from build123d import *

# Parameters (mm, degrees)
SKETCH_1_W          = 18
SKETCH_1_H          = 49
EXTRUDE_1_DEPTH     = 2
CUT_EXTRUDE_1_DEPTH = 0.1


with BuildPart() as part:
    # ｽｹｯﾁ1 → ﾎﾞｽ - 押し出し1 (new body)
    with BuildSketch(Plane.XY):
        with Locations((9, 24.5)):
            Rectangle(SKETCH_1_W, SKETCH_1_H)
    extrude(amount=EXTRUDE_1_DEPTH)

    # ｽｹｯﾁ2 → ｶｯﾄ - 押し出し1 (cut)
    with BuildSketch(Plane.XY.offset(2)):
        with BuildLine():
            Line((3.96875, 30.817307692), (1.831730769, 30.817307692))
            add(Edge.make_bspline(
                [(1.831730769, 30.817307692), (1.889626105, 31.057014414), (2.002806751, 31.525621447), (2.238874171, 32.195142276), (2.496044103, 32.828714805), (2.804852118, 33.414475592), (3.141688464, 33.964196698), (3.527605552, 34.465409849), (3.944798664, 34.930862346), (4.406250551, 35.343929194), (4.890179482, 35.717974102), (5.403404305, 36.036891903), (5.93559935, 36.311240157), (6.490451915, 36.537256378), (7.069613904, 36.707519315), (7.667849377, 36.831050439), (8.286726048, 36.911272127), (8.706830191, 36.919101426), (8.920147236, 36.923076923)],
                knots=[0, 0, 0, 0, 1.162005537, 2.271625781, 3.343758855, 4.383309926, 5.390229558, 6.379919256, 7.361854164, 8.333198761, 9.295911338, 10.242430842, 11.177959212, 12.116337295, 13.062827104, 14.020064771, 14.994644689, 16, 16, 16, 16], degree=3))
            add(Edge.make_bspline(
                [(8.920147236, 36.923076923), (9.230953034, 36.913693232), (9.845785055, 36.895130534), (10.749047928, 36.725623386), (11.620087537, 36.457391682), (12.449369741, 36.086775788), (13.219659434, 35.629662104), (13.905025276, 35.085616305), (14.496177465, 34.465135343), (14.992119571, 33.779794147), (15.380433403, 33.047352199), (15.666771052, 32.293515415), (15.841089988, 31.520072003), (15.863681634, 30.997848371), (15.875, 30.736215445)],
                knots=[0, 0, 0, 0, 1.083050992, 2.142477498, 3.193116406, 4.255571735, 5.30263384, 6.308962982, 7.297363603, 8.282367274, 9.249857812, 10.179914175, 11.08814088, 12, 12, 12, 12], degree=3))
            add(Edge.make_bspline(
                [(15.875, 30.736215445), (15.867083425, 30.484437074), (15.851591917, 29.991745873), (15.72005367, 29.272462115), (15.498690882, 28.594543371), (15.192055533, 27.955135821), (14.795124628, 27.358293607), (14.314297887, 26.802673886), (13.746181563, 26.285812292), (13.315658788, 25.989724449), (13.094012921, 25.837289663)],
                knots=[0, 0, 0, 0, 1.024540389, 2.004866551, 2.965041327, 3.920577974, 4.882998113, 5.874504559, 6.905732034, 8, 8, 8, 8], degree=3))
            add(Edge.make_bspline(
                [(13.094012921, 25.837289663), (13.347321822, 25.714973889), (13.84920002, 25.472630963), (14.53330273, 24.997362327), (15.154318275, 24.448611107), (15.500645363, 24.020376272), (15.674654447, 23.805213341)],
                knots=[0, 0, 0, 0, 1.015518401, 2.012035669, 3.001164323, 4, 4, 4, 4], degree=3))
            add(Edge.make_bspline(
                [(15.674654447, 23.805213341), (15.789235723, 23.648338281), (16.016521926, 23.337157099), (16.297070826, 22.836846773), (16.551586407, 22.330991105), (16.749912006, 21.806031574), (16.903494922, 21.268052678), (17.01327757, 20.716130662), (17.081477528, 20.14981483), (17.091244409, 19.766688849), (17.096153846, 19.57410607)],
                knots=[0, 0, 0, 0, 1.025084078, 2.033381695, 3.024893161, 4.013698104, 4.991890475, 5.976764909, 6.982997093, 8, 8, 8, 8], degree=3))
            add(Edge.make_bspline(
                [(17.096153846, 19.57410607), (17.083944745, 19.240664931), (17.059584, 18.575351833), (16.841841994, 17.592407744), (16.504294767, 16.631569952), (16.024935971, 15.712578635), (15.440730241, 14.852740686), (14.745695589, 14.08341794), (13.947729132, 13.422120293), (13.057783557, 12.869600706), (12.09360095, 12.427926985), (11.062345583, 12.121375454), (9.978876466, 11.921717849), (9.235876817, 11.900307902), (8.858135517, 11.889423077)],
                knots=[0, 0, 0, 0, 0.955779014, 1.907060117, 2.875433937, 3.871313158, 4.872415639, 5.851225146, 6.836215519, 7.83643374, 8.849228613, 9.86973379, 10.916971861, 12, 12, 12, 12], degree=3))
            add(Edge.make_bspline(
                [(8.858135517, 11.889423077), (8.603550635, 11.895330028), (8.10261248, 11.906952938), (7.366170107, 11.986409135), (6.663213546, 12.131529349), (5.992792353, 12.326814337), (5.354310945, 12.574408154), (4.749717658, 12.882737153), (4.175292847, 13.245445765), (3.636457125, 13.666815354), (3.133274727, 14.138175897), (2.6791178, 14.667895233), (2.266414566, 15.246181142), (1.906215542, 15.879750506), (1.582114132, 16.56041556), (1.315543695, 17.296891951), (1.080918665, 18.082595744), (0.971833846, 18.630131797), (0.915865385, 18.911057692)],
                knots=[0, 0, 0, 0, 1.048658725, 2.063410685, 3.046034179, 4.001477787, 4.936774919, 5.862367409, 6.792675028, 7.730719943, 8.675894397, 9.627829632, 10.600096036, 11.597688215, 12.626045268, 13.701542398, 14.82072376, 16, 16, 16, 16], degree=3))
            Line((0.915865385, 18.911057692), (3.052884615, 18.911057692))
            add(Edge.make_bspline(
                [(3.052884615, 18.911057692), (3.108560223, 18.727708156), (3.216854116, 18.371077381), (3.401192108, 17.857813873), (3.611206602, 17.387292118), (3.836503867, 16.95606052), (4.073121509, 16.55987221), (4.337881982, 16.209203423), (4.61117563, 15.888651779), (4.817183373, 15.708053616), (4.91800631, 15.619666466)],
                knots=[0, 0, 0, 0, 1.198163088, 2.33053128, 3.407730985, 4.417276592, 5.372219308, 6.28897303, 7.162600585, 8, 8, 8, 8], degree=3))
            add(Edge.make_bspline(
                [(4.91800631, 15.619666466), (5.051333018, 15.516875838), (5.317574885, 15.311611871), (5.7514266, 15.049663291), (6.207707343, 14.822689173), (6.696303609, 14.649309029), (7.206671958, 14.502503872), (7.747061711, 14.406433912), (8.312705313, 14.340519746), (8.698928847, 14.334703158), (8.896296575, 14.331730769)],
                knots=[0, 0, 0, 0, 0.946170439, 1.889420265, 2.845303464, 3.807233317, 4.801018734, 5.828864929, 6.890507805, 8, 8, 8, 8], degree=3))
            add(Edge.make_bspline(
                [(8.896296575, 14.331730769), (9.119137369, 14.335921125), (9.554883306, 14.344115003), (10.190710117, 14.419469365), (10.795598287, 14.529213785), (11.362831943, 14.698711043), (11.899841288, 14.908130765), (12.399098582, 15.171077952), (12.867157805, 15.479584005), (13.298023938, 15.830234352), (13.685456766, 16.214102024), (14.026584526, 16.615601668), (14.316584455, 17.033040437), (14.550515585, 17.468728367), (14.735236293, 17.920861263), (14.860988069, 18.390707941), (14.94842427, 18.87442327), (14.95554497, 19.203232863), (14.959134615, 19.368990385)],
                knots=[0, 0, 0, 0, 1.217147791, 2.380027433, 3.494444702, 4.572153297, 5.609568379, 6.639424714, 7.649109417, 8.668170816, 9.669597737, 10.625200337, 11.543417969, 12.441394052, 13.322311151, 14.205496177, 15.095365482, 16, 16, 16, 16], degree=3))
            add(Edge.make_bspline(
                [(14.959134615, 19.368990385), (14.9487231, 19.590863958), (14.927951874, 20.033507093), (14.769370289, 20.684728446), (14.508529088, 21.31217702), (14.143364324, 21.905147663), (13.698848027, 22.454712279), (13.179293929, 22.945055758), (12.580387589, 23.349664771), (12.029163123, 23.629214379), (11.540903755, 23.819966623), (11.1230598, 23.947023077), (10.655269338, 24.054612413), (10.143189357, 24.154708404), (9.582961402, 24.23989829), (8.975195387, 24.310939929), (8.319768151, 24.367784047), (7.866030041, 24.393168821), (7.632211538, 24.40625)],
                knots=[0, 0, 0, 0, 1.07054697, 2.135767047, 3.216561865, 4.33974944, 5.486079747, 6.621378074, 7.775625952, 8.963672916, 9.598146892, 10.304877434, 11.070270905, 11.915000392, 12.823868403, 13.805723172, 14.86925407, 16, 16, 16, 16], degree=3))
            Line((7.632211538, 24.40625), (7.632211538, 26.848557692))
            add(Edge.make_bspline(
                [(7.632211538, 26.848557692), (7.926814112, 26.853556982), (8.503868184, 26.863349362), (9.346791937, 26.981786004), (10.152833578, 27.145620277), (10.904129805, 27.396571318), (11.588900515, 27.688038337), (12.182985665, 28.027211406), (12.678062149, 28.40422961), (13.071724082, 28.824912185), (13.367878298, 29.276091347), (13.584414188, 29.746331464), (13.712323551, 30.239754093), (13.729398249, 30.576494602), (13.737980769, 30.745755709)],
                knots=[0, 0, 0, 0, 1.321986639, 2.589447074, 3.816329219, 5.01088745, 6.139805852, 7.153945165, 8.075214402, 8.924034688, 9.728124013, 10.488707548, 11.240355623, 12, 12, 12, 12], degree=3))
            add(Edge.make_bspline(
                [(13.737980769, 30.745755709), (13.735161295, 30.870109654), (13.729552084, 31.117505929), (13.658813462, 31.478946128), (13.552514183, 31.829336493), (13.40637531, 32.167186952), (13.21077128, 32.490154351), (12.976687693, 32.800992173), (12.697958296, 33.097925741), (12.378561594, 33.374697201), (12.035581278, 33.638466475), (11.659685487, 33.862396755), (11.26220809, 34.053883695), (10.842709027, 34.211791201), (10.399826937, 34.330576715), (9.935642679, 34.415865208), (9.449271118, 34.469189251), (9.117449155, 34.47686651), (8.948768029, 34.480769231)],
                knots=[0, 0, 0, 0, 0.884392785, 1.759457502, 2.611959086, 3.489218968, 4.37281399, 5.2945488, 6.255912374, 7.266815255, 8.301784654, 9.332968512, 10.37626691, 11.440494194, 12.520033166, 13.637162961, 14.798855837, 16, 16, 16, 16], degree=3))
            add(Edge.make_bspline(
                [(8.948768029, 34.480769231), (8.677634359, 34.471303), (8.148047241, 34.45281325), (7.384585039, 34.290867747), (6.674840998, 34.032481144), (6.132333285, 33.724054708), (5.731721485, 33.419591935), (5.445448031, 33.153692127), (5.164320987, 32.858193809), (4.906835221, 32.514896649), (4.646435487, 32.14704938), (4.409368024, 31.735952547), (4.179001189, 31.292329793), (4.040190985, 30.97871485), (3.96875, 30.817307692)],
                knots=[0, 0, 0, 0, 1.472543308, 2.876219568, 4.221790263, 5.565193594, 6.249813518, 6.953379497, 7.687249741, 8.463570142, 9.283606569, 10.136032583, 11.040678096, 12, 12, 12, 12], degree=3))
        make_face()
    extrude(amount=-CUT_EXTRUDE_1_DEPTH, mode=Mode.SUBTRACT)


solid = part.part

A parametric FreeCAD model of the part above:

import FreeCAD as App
import Part
import Sketcher
Q = App.Units.Quantity

doc = App.newDocument("Part")
body = doc.addObject("PartDesign::Body", "Body")

# Sketch on XY plane
sketch1 = body.newObject("Sketcher::SketchObject", "Sketch")
sketch1.AttachmentSupport = (doc.getObject("XY_Plane"), [""])
sketch1.MapMode = "FlatFace"
sketch1.addGeometry(Part.LineSegment(App.Vector(0, 49, 0), App.Vector(0, 0, 0)), False)
sketch1.addGeometry(Part.LineSegment(App.Vector(0, 0, 0), App.Vector(18, 0, 0)), False)
sketch1.addGeometry(Part.LineSegment(App.Vector(18, 0, 0), App.Vector(18, 49, 0)), False)
sketch1.addGeometry(Part.LineSegment(App.Vector(18, 49, 0), App.Vector(0, 49, 0)), False)
sketch1.addConstraint(Sketcher.Constraint("Coincident", 0, 2, 1, 1))
sketch1.addConstraint(Sketcher.Constraint("Coincident", 1, 2, 2, 1))
sketch1.addConstraint(Sketcher.Constraint("Coincident", 2, 2, 3, 1))
sketch1.addConstraint(Sketcher.Constraint("Coincident", 3, 2, 0, 1))
sketch1.addConstraint(Sketcher.Constraint("Vertical", 0))
sketch1.addConstraint(Sketcher.Constraint("Horizontal", 1))
sketch1.addConstraint(Sketcher.Constraint("Vertical", 2))
sketch1.addConstraint(Sketcher.Constraint("Horizontal", 3))
sketch1.addConstraint(Sketcher.Constraint("Coincident", 0, 2, -1, 1))
sketch1.addConstraint(Sketcher.Constraint("DistanceX", 1, 1, 1, 2, Q("18 mm")))
sketch1.addConstraint(Sketcher.Constraint("DistanceY", 0, 2, 0, 1, Q("49 mm")))
pad1 = body.newObject("PartDesign::Pad", "Pad")
pad1.Profile = sketch1
pad1.Length = 2

# Sketch on XY plane
sketch2 = body.newObject("Sketcher::SketchObject", "Sketch001")
sketch2.AttachmentSupport = (doc.getObject("XY_Plane"), [""])
sketch2.MapMode = "FlatFace"
sketch2.AttachmentOffset = App.Placement(App.Vector(0, 0, 2), App.Rotation())
sketch2.addGeometry(Part.LineSegment(App.Vector(1.831731, 30.817308, 0), App.Vector(3.96875, 30.817308, 0)), False)
sketch2.addGeometry(Part.BSplineCurve([App.Vector(8.948768, 34.480769, 0), App.Vector(8.677634, 34.471303, 0), App.Vector(8.148047, 34.452813, 0), App.Vector(7.384585, 34.290868, 0), App.Vector(6.674841, 34.032481, 0), App.Vector(6.132333, 33.724055, 0), App.Vector(5.731721, 33.419592, 0), App.Vector(5.445448, 33.153692, 0), App.Vector(5.164321, 32.858194, 0), App.Vector(4.906835, 32.514897, 0), App.Vector(4.646435, 32.147049, 0), App.Vector(4.409368, 31.735953, 0), App.Vector(4.179001, 31.29233, 0), App.Vector(4.040191, 30.978715, 0), App.Vector(3.96875, 30.817308, 0)], [4, 1, 1, 1, 1, 1, 1, 1, 1, 1, 1, 1, 4], [0, 1.472543308, 2.876219568, 4.221790263, 5.565193594, 6.249813518, 6.953379497, 7.687249741, 8.463570142, 9.283606569, 10.136032583, 11.040678096, 12], False, 3, [1, 1, 1, 1, 1, 1, 1, 1, 1, 1, 1, 1, 1, 1, 1], False), False)
sketch2.addGeometry(Part.BSplineCurve([App.Vector(13.737981, 30.745756, 0), App.Vector(13.735161, 30.87011, 0), App.Vector(13.729552, 31.117506, 0), App.Vector(13.658813, 31.478946, 0), App.Vector(13.552514, 31.829336, 0), App.Vector(13.406375, 32.167187, 0), App.Vector(13.210771, 32.490154, 0), App.Vector(12.976688, 32.800992, 0), App.Vector(12.697958, 33.097926, 0), App.Vector(12.378562, 33.374697, 0), App.Vector(12.035581, 33.638466, 0), App.Vector(11.659685, 33.862397, 0), App.Vector(11.262208, 34.053884, 0), App.Vector(10.842709, 34.211791, 0), App.Vector(10.399827, 34.330577, 0), App.Vector(9.935643, 34.415865, 0), App.Vector(9.449271, 34.469189, 0), App.Vector(9.117449, 34.476867, 0), App.Vector(8.948768, 34.480769, 0)], [4, 1, 1, 1, 1, 1, 1, 1, 1, 1, 1, 1, 1, 1, 1, 1, 4], [0, 0.884392785, 1.759457502, 2.611959086, 3.489218968, 4.37281399, 5.2945488, 6.255912374, 7.266815255, 8.301784654, 9.332968512, 10.37626691, 11.440494194, 12.520033166, 13.637162961, 14.798855837, 16], False, 3, [1, 1, 1, 1, 1, 1, 1, 1, 1, 1, 1, 1, 1, 1, 1, 1, 1, 1, 1], False), False)
sketch2.addGeometry(Part.BSplineCurve([App.Vector(7.632212, 26.848558, 0), App.Vector(7.926814, 26.853557, 0), App.Vector(8.503868, 26.863349, 0), App.Vector(9.346792, 26.981786, 0), App.Vector(10.152834, 27.14562, 0), App.Vector(10.90413, 27.396571, 0), App.Vector(11.588901, 27.688038, 0), App.Vector(12.182986, 28.027211, 0), App.Vector(12.678062, 28.40423, 0), App.Vector(13.071724, 28.824912, 0), App.Vector(13.367878, 29.276091, 0), App.Vector(13.584414, 29.746331, 0), App.Vector(13.712324, 30.239754, 0), App.Vector(13.729398, 30.576495, 0), App.Vector(13.737981, 30.745756, 0)], [4, 1, 1, 1, 1, 1, 1, 1, 1, 1, 1, 1, 4], [0, 1.321986639, 2.589447074, 3.816329219, 5.01088745, 6.139805852, 7.153945165, 8.075214402, 8.924034688, 9.728124013, 10.488707548, 11.240355623, 12], False, 3, [1, 1, 1, 1, 1, 1, 1, 1, 1, 1, 1, 1, 1, 1, 1], False), False)
sketch2.addGeometry(Part.LineSegment(App.Vector(7.632212, 26.848558, 0), App.Vector(7.632212, 24.40625, 0)), False)
sketch2.addGeometry(Part.BSplineCurve([App.Vector(14.959135, 19.36899, 0), App.Vector(14.948723, 19.590864, 0), App.Vector(14.927952, 20.033507, 0), App.Vector(14.76937, 20.684728, 0), App.Vector(14.508529, 21.312177, 0), App.Vector(14.143364, 21.905148, 0), App.Vector(13.698848, 22.454712, 0), App.Vector(13.179294, 22.945056, 0), App.Vector(12.580388, 23.349665, 0), App.Vector(12.029163, 23.629214, 0), App.Vector(11.540904, 23.819967, 0), App.Vector(11.12306, 23.947023, 0), App.Vector(10.655269, 24.054612, 0), App.Vector(10.143189, 24.154708, 0), App.Vector(9.582961, 24.239898, 0), App.Vector(8.975195, 24.31094, 0), App.Vector(8.319768, 24.367784, 0), App.Vector(7.86603, 24.393169, 0), App.Vector(7.632212, 24.40625, 0)], [4, 1, 1, 1, 1, 1, 1, 1, 1, 1, 1, 1, 1, 1, 1, 1, 4], [0, 1.07054697, 2.135767047, 3.216561865, 4.33974944, 5.486079747, 6.621378074, 7.775625952, 8.963672916, 9.598146892, 10.304877434, 11.070270905, 11.915000392, 12.823868403, 13.805723172, 14.86925407, 16], False, 3, [1, 1, 1, 1, 1, 1, 1, 1, 1, 1, 1, 1, 1, 1, 1, 1, 1, 1, 1], False), False)
sketch2.addGeometry(Part.BSplineCurve([App.Vector(8.896297, 14.331731, 0), App.Vector(9.119137, 14.335921, 0), App.Vector(9.554883, 14.344115, 0), App.Vector(10.19071, 14.419469, 0), App.Vector(10.795598, 14.529214, 0), App.Vector(11.362832, 14.698711, 0), App.Vector(11.899841, 14.908131, 0), App.Vector(12.399099, 15.171078, 0), App.Vector(12.867158, 15.479584, 0), App.Vector(13.298024, 15.830234, 0), App.Vector(13.685457, 16.214102, 0), App.Vector(14.026585, 16.615602, 0), App.Vector(14.316584, 17.03304, 0), App.Vector(14.550516, 17.468728, 0), App.Vector(14.735236, 17.920861, 0), App.Vector(14.860988, 18.390708, 0), App.Vector(14.948424, 18.874423, 0), App.Vector(14.955545, 19.203233, 0), App.Vector(14.959135, 19.36899, 0)], [4, 1, 1, 1, 1, 1, 1, 1, 1, 1, 1, 1, 1, 1, 1, 1, 4], [0, 1.217147791, 2.380027433, 3.494444702, 4.572153297, 5.609568379, 6.639424714, 7.649109417, 8.668170816, 9.669597737, 10.625200337, 11.543417969, 12.441394052, 13.322311151, 14.205496177, 15.095365482, 16], False, 3, [1, 1, 1, 1, 1, 1, 1, 1, 1, 1, 1, 1, 1, 1, 1, 1, 1, 1, 1], False), False)
sketch2.addGeometry(Part.BSplineCurve([App.Vector(4.918006, 15.619666, 0), App.Vector(5.051333, 15.516876, 0), App.Vector(5.317575, 15.311612, 0), App.Vector(5.751427, 15.049663, 0), App.Vector(6.207707, 14.822689, 0), App.Vector(6.696304, 14.649309, 0), App.Vector(7.206672, 14.502504, 0), App.Vector(7.747062, 14.406434, 0), App.Vector(8.312705, 14.34052, 0), App.Vector(8.698929, 14.334703, 0), App.Vector(8.896297, 14.331731, 0)], [4, 1, 1, 1, 1, 1, 1, 1, 4], [0, 0.946170439, 1.889420265, 2.845303464, 3.807233317, 4.801018734, 5.828864929, 6.890507805, 8], False, 3, [1, 1, 1, 1, 1, 1, 1, 1, 1, 1, 1], False), False)
sketch2.addGeometry(Part.BSplineCurve([App.Vector(3.052885, 18.911058, 0), App.Vector(3.10856, 18.727708, 0), App.Vector(3.216854, 18.371077, 0), App.Vector(3.401192, 17.857814, 0), App.Vector(3.611207, 17.387292, 0), App.Vector(3.836504, 16.956061, 0), App.Vector(4.073122, 16.559872, 0), App.Vector(4.337882, 16.209203, 0), App.Vector(4.611176, 15.888652, 0), App.Vector(4.817183, 15.708054, 0), App.Vector(4.918006, 15.619666, 0)], [4, 1, 1, 1, 1, 1, 1, 1, 4], [0, 1.198163088, 2.33053128, 3.407730985, 4.417276592, 5.372219308, 6.28897303, 7.162600585, 8], False, 3, [1, 1, 1, 1, 1, 1, 1, 1, 1, 1, 1], False), False)
sketch2.addGeometry(Part.LineSegment(App.Vector(3.052885, 18.911058, 0), App.Vector(0.915865, 18.911058, 0)), False)
sketch2.addGeometry(Part.BSplineCurve([App.Vector(8.858136, 11.889423, 0), App.Vector(8.603551, 11.89533, 0), App.Vector(8.102612, 11.906953, 0), App.Vector(7.36617, 11.986409, 0), App.Vector(6.663214, 12.131529, 0), App.Vector(5.992792, 12.326814, 0), App.Vector(5.354311, 12.574408, 0), App.Vector(4.749718, 12.882737, 0), App.Vector(4.175293, 13.245446, 0), App.Vector(3.636457, 13.666815, 0), App.Vector(3.133275, 14.138176, 0), App.Vector(2.679118, 14.667895, 0), App.Vector(2.266415, 15.246181, 0), App.Vector(1.906216, 15.879751, 0), App.Vector(1.582114, 16.560416, 0), App.Vector(1.315544, 17.296892, 0), App.Vector(1.080919, 18.082596, 0), App.Vector(0.971834, 18.630132, 0), App.Vector(0.915865, 18.911058, 0)], [4, 1, 1, 1, 1, 1, 1, 1, 1, 1, 1, 1, 1, 1, 1, 1, 4], [0, 1.048658725, 2.063410685, 3.046034179, 4.001477787, 4.936774919, 5.862367409, 6.792675028, 7.730719943, 8.675894397, 9.627829632, 10.600096036, 11.597688215, 12.626045268, 13.701542398, 14.82072376, 16], False, 3, [1, 1, 1, 1, 1, 1, 1, 1, 1, 1, 1, 1, 1, 1, 1, 1, 1, 1, 1], False), False)
sketch2.addGeometry(Part.BSplineCurve([App.Vector(17.096154, 19.574106, 0), App.Vector(17.083945, 19.240665, 0), App.Vector(17.059584, 18.575352, 0), App.Vector(16.841842, 17.592408, 0), App.Vector(16.504295, 16.63157, 0), App.Vector(16.024936, 15.712579, 0), App.Vector(15.44073, 14.852741, 0), App.Vector(14.745696, 14.083418, 0), App.Vector(13.947729, 13.42212, 0), App.Vector(13.057784, 12.869601, 0), App.Vector(12.093601, 12.427927, 0), App.Vector(11.062346, 12.121375, 0), App.Vector(9.978876, 11.921718, 0), App.Vector(9.235877, 11.900308, 0), App.Vector(8.858136, 11.889423, 0)], [4, 1, 1, 1, 1, 1, 1, 1, 1, 1, 1, 1, 4], [0, 0.955779014, 1.907060117, 2.875433937, 3.871313158, 4.872415639, 5.851225146, 6.836215519, 7.83643374, 8.849228613, 9.86973379, 10.916971861, 12], False, 3, [1, 1, 1, 1, 1, 1, 1, 1, 1, 1, 1, 1, 1, 1, 1], False), False)
sketch2.addGeometry(Part.BSplineCurve([App.Vector(15.674654, 23.805213, 0), App.Vector(15.789236, 23.648338, 0), App.Vector(16.016522, 23.337157, 0), App.Vector(16.297071, 22.836847, 0), App.Vector(16.551586, 22.330991, 0), App.Vector(16.749912, 21.806032, 0), App.Vector(16.903495, 21.268053, 0), App.Vector(17.013278, 20.716131, 0), App.Vector(17.081478, 20.149815, 0), App.Vector(17.091244, 19.766689, 0), App.Vector(17.096154, 19.574106, 0)], [4, 1, 1, 1, 1, 1, 1, 1, 4], [0, 1.025084078, 2.033381695, 3.024893161, 4.013698104, 4.991890475, 5.976764909, 6.982997093, 8], False, 3, [1, 1, 1, 1, 1, 1, 1, 1, 1, 1, 1], False), False)
sketch2.addGeometry(Part.BSplineCurve([App.Vector(13.094013, 25.83729, 0), App.Vector(13.347322, 25.714974, 0), App.Vector(13.8492, 25.472631, 0), App.Vector(14.533303, 24.997362, 0), App.Vector(15.154318, 24.448611, 0), App.Vector(15.500645, 24.020376, 0), App.Vector(15.674654, 23.805213, 0)], [4, 1, 1, 1, 4], [0, 1.015518401, 2.012035669, 3.001164323, 4], False, 3, [1, 1, 1, 1, 1, 1, 1], False), False)
sketch2.addGeometry(Part.BSplineCurve([App.Vector(15.875, 30.736215, 0), App.Vector(15.867083, 30.484437, 0), App.Vector(15.851592, 29.991746, 0), App.Vector(15.720054, 29.272462, 0), App.Vector(15.498691, 28.594543, 0), App.Vector(15.192056, 27.955136, 0), App.Vector(14.795125, 27.358294, 0), App.Vector(14.314298, 26.802674, 0), App.Vector(13.746182, 26.285812, 0), App.Vector(13.315659, 25.989724, 0), App.Vector(13.094013, 25.83729, 0)], [4, 1, 1, 1, 1, 1, 1, 1, 4], [0, 1.024540389, 2.004866551, 2.965041327, 3.920577974, 4.882998113, 5.874504559, 6.905732034, 8], False, 3, [1, 1, 1, 1, 1, 1, 1, 1, 1, 1, 1], False), False)
sketch2.addGeometry(Part.BSplineCurve([App.Vector(8.920147, 36.923077, 0), App.Vector(9.230953, 36.913693, 0), App.Vector(9.845785, 36.895131, 0), App.Vector(10.749048, 36.725623, 0), App.Vector(11.620088, 36.457392, 0), App.Vector(12.44937, 36.086776, 0), App.Vector(13.219659, 35.629662, 0), App.Vector(13.905025, 35.085616, 0), App.Vector(14.496177, 34.465135, 0), App.Vector(14.99212, 33.779794, 0), App.Vector(15.380433, 33.047352, 0), App.Vector(15.666771, 32.293515, 0), App.Vector(15.84109, 31.520072, 0), App.Vector(15.863682, 30.997848, 0), App.Vector(15.875, 30.736215, 0)], [4, 1, 1, 1, 1, 1, 1, 1, 1, 1, 1, 1, 4], [0, 1.083050992, 2.142477498, 3.193116406, 4.255571735, 5.30263384, 6.308962982, 7.297363603, 8.282367274, 9.249857812, 10.179914175, 11.08814088, 12], False, 3, [1, 1, 1, 1, 1, 1, 1, 1, 1, 1, 1, 1, 1, 1, 1], False), False)
sketch2.addGeometry(Part.BSplineCurve([App.Vector(1.831731, 30.817308, 0), App.Vector(1.889626, 31.057014, 0), App.Vector(2.002807, 31.525621, 0), App.Vector(2.238874, 32.195142, 0), App.Vector(2.496044, 32.828715, 0), App.Vector(2.804852, 33.414476, 0), App.Vector(3.141688, 33.964197, 0), App.Vector(3.527606, 34.46541, 0), App.Vector(3.944799, 34.930862, 0), App.Vector(4.406251, 35.343929, 0), App.Vector(4.890179, 35.717974, 0), App.Vector(5.403404, 36.036892, 0), App.Vector(5.935599, 36.31124, 0), App.Vector(6.490452, 36.537256, 0), App.Vector(7.069614, 36.707519, 0), App.Vector(7.667849, 36.83105, 0), App.Vector(8.286726, 36.911272, 0), App.Vector(8.70683, 36.919101, 0), App.Vector(8.920147, 36.923077, 0)], [4, 1, 1, 1, 1, 1, 1, 1, 1, 1, 1, 1, 1, 1, 1, 1, 4], [0, 1.162005537, 2.271625781, 3.343758855, 4.383309926, 5.390229558, 6.379919256, 7.361854164, 8.333198761, 9.295911338, 10.242430842, 11.177959212, 12.116337295, 13.062827104, 14.020064771, 14.994644689, 16], False, 3, [1, 1, 1, 1, 1, 1, 1, 1, 1, 1, 1, 1, 1, 1, 1, 1, 1, 1, 1], False), False)
sketch2.addConstraint(Sketcher.Constraint("Block", 1))
sketch2.addConstraint(Sketcher.Constraint("Block", 2))
sketch2.addConstraint(Sketcher.Constraint("Block", 3))
sketch2.addConstraint(Sketcher.Constraint("Block", 5))
sketch2.addConstraint(Sketcher.Constraint("Block", 6))
sketch2.addConstraint(Sketcher.Constraint("Block", 7))
sketch2.addConstraint(Sketcher.Constraint("Block", 8))
sketch2.addConstraint(Sketcher.Constraint("Block", 10))
sketch2.addConstraint(Sketcher.Constraint("Block", 11))
sketch2.addConstraint(Sketcher.Constraint("Block", 12))
sketch2.addConstraint(Sketcher.Constraint("Block", 13))
sketch2.addConstraint(Sketcher.Constraint("Block", 14))
sketch2.addConstraint(Sketcher.Constraint("Block", 15))
sketch2.addConstraint(Sketcher.Constraint("Block", 16))
sketch2.addConstraint(Sketcher.Constraint("Coincident", 0, 2, 1, 2))
sketch2.addConstraint(Sketcher.Constraint("Coincident", 3, 1, 4, 1))
sketch2.addConstraint(Sketcher.Constraint("Coincident", 4, 2, 5, 2))
sketch2.addConstraint(Sketcher.Constraint("Coincident", 8, 1, 9, 1))
sketch2.addConstraint(Sketcher.Constraint("Coincident", 9, 2, 10, 2))
sketch2.addConstraint(Sketcher.Constraint("Coincident", 16, 1, 0, 1))
pocket1 = body.newObject("PartDesign::Pocket", "Pocket")
pocket1.Profile = sketch2
pocket1.Length = 0.1

doc.recompute()
